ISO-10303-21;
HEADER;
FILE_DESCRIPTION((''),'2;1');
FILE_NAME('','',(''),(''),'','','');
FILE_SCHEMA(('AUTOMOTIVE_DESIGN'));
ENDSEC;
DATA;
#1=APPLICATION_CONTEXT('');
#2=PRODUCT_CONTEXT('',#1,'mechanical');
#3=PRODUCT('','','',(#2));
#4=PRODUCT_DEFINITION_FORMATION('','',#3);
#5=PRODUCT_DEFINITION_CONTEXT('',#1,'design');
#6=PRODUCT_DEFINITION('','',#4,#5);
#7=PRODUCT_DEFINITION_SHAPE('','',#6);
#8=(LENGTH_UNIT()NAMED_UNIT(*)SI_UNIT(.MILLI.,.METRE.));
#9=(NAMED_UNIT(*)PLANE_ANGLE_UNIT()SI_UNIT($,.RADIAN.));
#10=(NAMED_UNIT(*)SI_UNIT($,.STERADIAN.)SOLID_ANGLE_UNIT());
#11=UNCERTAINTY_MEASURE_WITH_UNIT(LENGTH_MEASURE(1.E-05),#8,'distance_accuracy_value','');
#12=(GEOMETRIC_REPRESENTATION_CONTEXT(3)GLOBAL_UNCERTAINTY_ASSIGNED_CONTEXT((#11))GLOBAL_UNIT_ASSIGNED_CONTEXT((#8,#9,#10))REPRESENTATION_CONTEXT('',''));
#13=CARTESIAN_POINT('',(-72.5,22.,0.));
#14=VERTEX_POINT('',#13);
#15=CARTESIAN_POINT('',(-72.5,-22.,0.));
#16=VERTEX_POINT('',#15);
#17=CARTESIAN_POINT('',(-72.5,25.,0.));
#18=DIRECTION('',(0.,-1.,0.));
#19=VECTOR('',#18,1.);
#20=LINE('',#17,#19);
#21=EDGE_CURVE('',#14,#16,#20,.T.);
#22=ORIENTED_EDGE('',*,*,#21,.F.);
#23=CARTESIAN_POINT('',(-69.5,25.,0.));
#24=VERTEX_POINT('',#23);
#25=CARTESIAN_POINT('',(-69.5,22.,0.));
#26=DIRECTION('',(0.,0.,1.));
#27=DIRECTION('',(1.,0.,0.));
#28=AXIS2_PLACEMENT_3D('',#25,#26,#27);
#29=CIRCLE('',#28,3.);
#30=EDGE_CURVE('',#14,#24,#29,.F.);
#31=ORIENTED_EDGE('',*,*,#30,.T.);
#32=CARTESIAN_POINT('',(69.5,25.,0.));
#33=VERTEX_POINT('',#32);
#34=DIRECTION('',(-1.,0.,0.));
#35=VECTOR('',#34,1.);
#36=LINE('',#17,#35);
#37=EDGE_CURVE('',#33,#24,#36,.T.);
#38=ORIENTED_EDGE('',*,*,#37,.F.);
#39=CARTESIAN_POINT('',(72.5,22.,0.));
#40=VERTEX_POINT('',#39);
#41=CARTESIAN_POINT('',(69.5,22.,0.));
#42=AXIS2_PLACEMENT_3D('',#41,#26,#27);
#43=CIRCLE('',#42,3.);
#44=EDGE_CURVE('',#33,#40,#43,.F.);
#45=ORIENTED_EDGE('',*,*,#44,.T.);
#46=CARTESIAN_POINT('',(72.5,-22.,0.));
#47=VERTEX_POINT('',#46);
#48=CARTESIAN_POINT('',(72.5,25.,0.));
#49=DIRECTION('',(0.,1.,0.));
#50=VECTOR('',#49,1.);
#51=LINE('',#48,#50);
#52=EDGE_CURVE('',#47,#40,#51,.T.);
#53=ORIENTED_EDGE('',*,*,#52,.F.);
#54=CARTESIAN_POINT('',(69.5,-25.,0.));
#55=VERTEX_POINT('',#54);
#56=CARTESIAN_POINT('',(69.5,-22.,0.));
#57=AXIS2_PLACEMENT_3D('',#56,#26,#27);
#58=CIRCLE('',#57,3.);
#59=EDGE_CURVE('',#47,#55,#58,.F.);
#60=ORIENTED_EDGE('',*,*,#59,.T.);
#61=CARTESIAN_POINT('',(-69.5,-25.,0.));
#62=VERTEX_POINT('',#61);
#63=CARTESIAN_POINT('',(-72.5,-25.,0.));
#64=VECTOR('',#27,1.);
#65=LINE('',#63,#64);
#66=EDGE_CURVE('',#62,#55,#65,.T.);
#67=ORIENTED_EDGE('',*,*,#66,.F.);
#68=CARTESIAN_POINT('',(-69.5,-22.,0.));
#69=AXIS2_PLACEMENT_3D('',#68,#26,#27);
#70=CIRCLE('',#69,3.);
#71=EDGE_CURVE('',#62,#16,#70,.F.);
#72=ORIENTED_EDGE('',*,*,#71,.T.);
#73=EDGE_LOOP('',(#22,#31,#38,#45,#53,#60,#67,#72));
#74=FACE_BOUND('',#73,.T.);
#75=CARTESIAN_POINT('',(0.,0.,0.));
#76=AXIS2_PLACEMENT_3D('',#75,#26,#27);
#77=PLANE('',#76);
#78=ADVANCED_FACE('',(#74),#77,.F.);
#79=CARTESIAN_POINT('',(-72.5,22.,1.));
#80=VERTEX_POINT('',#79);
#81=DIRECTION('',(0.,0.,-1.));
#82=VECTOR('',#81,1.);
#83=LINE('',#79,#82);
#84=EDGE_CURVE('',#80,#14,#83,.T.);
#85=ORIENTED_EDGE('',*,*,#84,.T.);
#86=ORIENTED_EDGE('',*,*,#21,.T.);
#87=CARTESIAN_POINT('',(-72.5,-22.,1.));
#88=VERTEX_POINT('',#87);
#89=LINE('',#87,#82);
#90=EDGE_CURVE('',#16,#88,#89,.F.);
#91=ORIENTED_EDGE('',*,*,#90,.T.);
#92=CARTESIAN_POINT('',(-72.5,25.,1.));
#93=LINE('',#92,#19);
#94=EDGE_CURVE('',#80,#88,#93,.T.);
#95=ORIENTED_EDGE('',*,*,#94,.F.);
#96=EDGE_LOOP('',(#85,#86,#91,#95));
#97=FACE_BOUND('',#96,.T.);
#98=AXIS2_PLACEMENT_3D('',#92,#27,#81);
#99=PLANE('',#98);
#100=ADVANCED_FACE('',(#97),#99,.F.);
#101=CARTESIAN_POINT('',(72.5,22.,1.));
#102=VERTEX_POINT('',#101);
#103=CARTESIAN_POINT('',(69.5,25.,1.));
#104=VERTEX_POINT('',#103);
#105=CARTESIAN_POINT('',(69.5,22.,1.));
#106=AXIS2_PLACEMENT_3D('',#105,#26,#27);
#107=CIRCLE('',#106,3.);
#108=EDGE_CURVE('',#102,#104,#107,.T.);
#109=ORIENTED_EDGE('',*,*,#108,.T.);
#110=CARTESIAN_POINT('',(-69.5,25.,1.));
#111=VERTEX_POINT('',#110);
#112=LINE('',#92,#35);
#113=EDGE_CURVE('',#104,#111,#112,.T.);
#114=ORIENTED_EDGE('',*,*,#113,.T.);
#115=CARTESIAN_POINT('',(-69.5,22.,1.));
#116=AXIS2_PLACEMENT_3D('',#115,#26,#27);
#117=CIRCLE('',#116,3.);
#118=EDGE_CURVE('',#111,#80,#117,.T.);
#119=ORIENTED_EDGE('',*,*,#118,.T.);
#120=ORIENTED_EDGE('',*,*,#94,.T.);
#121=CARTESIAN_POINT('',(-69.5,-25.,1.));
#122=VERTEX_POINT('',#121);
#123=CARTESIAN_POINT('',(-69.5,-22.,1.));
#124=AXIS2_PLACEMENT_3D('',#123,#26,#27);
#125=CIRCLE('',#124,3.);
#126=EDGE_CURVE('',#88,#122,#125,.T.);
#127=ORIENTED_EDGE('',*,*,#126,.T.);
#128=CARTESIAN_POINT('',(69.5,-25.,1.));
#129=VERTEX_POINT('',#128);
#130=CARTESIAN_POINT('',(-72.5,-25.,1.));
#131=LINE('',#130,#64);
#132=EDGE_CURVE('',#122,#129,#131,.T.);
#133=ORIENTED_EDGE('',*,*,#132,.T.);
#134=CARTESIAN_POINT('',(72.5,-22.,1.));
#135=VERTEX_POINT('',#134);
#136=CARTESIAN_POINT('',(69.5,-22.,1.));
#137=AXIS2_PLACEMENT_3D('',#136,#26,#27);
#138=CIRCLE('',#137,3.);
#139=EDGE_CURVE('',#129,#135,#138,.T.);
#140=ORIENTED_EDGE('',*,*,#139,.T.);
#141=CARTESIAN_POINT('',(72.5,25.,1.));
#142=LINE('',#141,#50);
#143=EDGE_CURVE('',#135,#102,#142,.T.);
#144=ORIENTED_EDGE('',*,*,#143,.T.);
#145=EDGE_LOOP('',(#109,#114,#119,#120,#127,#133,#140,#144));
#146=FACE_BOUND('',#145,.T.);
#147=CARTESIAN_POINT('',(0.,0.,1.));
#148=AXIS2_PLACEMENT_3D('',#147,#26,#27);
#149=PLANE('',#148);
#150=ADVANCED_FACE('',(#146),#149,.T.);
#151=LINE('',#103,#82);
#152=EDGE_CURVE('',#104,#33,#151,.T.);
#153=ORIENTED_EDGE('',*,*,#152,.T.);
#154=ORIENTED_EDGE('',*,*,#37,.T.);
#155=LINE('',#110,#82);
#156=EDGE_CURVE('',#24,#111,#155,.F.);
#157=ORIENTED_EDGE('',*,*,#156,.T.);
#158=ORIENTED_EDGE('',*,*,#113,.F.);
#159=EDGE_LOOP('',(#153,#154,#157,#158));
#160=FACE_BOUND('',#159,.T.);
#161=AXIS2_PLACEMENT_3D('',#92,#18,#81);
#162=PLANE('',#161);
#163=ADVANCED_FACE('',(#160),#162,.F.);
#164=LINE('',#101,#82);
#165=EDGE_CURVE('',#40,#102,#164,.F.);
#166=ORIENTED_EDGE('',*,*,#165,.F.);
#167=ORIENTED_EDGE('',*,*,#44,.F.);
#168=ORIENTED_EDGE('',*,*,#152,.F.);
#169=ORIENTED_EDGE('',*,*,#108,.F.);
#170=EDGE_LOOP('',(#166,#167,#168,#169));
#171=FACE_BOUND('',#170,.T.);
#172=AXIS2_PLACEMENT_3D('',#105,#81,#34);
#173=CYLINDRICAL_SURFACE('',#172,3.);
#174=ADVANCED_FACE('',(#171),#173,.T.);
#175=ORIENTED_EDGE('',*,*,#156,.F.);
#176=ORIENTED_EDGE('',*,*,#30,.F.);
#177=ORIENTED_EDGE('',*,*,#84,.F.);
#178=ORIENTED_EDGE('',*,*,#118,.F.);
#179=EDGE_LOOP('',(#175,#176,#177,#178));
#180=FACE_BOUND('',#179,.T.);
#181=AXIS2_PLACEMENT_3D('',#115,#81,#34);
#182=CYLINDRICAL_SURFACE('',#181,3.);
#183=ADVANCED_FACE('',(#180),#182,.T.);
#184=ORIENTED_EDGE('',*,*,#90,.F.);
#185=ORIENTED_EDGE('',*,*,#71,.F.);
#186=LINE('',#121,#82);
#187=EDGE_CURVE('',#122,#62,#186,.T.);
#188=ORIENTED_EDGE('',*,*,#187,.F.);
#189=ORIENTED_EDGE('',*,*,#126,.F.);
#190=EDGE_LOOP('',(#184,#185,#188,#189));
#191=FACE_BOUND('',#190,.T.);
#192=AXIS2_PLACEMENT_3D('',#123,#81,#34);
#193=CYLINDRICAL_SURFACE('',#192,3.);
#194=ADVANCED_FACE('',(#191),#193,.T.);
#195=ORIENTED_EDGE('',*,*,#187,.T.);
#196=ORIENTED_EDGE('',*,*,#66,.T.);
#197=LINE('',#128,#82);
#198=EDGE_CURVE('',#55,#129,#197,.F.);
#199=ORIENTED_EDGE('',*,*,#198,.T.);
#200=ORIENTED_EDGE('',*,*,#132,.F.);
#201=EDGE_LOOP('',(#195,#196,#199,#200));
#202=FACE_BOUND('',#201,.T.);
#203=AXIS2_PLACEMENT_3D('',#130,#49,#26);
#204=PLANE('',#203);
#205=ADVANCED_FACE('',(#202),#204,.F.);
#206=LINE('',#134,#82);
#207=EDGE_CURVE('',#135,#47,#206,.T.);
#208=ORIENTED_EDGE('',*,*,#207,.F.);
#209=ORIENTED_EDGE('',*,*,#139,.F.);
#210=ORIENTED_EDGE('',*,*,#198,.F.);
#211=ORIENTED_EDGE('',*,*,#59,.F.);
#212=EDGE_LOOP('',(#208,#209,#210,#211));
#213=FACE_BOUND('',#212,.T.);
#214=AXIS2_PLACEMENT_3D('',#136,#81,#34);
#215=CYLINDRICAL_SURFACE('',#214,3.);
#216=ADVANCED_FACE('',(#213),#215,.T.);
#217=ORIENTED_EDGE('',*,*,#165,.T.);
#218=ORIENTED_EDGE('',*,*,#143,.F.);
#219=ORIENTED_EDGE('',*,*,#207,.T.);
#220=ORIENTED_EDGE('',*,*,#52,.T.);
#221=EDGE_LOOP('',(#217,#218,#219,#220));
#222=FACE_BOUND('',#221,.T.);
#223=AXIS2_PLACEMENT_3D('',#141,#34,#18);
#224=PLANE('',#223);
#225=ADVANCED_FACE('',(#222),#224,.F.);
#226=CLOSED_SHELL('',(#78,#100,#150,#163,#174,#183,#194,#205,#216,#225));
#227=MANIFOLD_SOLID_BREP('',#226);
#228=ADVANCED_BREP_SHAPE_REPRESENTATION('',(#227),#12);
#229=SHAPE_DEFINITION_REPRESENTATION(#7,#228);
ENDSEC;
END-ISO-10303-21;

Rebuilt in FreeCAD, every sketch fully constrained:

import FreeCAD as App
import Part
import Sketcher


def edges_at(feature, points):
    """Names of the edges that pass closest to the given points."""
    edges = feature.Shape.Edges
    near = lambda p: min(range(len(edges)), key=lambda i: edges[i].distToShape(Part.Vertex(*p))[0])
    return sorted({f"Edge{near(p) + 1}" for p in points})


def add_polygon(sketch, points):
    """Adds a closed chain of lines whose ends are joined by coincident constraints."""
    first, n = sketch.GeometryCount, len(points)
    for a, b in zip(points, points[1:] + points[:1]):
        sketch.addGeometry(Part.LineSegment(App.Vector(*a, 0), App.Vector(*b, 0)), False)
    for i in range(n):
        sketch.addConstraint(Sketcher.Constraint("Coincident", first + i, 2, first + (i + 1) % n, 1))

doc = App.newDocument("Part")
body = doc.addObject("PartDesign::Body", "Body")

# Sketch on XY plane
sketch1 = doc.addObject("Sketcher::SketchObject", "Sketch")
body.addObject(sketch1)
sketch1.AttachmentSupport = (doc.XY_Plane, [""])
sketch1.MapMode = "FlatFace"
add_polygon(sketch1, [(-72.5, 25), (-72.5, -25), (72.5, -25), (72.5, 25)])  # lines 0-3
sketch1.addConstraint([
    Sketcher.Constraint("Vertical", 0),
    Sketcher.Constraint("Horizontal", 1),
    Sketcher.Constraint("Vertical", 2),
    Sketcher.Constraint("Horizontal", 3),
    Sketcher.Constraint("Symmetric", 0, 2, 2, 2, -1, 1),
    Sketcher.Constraint("DistanceX", 1, 1, 1, 2, 145.0),
    Sketcher.Constraint("DistanceY", 0, 2, 0, 1, 50.0),
])
pad1 = doc.addObject("PartDesign::Pad", "Pad")
body.addObject(pad1)
pad1.Profile = sketch1
pad1.Length = 1
doc.recompute()

fillet = doc.addObject("PartDesign::Fillet", "Fillet")
body.addObject(fillet)
fillet.Base = (pad1, edges_at(pad1, [
    (72.5, -25, 0.5),
    (-72.5, -25, 0.5),
    (-72.5, 25, 0.5),
    (72.5, 25, 0.5),
]))
fillet.Radius = 3

doc.recompute()
